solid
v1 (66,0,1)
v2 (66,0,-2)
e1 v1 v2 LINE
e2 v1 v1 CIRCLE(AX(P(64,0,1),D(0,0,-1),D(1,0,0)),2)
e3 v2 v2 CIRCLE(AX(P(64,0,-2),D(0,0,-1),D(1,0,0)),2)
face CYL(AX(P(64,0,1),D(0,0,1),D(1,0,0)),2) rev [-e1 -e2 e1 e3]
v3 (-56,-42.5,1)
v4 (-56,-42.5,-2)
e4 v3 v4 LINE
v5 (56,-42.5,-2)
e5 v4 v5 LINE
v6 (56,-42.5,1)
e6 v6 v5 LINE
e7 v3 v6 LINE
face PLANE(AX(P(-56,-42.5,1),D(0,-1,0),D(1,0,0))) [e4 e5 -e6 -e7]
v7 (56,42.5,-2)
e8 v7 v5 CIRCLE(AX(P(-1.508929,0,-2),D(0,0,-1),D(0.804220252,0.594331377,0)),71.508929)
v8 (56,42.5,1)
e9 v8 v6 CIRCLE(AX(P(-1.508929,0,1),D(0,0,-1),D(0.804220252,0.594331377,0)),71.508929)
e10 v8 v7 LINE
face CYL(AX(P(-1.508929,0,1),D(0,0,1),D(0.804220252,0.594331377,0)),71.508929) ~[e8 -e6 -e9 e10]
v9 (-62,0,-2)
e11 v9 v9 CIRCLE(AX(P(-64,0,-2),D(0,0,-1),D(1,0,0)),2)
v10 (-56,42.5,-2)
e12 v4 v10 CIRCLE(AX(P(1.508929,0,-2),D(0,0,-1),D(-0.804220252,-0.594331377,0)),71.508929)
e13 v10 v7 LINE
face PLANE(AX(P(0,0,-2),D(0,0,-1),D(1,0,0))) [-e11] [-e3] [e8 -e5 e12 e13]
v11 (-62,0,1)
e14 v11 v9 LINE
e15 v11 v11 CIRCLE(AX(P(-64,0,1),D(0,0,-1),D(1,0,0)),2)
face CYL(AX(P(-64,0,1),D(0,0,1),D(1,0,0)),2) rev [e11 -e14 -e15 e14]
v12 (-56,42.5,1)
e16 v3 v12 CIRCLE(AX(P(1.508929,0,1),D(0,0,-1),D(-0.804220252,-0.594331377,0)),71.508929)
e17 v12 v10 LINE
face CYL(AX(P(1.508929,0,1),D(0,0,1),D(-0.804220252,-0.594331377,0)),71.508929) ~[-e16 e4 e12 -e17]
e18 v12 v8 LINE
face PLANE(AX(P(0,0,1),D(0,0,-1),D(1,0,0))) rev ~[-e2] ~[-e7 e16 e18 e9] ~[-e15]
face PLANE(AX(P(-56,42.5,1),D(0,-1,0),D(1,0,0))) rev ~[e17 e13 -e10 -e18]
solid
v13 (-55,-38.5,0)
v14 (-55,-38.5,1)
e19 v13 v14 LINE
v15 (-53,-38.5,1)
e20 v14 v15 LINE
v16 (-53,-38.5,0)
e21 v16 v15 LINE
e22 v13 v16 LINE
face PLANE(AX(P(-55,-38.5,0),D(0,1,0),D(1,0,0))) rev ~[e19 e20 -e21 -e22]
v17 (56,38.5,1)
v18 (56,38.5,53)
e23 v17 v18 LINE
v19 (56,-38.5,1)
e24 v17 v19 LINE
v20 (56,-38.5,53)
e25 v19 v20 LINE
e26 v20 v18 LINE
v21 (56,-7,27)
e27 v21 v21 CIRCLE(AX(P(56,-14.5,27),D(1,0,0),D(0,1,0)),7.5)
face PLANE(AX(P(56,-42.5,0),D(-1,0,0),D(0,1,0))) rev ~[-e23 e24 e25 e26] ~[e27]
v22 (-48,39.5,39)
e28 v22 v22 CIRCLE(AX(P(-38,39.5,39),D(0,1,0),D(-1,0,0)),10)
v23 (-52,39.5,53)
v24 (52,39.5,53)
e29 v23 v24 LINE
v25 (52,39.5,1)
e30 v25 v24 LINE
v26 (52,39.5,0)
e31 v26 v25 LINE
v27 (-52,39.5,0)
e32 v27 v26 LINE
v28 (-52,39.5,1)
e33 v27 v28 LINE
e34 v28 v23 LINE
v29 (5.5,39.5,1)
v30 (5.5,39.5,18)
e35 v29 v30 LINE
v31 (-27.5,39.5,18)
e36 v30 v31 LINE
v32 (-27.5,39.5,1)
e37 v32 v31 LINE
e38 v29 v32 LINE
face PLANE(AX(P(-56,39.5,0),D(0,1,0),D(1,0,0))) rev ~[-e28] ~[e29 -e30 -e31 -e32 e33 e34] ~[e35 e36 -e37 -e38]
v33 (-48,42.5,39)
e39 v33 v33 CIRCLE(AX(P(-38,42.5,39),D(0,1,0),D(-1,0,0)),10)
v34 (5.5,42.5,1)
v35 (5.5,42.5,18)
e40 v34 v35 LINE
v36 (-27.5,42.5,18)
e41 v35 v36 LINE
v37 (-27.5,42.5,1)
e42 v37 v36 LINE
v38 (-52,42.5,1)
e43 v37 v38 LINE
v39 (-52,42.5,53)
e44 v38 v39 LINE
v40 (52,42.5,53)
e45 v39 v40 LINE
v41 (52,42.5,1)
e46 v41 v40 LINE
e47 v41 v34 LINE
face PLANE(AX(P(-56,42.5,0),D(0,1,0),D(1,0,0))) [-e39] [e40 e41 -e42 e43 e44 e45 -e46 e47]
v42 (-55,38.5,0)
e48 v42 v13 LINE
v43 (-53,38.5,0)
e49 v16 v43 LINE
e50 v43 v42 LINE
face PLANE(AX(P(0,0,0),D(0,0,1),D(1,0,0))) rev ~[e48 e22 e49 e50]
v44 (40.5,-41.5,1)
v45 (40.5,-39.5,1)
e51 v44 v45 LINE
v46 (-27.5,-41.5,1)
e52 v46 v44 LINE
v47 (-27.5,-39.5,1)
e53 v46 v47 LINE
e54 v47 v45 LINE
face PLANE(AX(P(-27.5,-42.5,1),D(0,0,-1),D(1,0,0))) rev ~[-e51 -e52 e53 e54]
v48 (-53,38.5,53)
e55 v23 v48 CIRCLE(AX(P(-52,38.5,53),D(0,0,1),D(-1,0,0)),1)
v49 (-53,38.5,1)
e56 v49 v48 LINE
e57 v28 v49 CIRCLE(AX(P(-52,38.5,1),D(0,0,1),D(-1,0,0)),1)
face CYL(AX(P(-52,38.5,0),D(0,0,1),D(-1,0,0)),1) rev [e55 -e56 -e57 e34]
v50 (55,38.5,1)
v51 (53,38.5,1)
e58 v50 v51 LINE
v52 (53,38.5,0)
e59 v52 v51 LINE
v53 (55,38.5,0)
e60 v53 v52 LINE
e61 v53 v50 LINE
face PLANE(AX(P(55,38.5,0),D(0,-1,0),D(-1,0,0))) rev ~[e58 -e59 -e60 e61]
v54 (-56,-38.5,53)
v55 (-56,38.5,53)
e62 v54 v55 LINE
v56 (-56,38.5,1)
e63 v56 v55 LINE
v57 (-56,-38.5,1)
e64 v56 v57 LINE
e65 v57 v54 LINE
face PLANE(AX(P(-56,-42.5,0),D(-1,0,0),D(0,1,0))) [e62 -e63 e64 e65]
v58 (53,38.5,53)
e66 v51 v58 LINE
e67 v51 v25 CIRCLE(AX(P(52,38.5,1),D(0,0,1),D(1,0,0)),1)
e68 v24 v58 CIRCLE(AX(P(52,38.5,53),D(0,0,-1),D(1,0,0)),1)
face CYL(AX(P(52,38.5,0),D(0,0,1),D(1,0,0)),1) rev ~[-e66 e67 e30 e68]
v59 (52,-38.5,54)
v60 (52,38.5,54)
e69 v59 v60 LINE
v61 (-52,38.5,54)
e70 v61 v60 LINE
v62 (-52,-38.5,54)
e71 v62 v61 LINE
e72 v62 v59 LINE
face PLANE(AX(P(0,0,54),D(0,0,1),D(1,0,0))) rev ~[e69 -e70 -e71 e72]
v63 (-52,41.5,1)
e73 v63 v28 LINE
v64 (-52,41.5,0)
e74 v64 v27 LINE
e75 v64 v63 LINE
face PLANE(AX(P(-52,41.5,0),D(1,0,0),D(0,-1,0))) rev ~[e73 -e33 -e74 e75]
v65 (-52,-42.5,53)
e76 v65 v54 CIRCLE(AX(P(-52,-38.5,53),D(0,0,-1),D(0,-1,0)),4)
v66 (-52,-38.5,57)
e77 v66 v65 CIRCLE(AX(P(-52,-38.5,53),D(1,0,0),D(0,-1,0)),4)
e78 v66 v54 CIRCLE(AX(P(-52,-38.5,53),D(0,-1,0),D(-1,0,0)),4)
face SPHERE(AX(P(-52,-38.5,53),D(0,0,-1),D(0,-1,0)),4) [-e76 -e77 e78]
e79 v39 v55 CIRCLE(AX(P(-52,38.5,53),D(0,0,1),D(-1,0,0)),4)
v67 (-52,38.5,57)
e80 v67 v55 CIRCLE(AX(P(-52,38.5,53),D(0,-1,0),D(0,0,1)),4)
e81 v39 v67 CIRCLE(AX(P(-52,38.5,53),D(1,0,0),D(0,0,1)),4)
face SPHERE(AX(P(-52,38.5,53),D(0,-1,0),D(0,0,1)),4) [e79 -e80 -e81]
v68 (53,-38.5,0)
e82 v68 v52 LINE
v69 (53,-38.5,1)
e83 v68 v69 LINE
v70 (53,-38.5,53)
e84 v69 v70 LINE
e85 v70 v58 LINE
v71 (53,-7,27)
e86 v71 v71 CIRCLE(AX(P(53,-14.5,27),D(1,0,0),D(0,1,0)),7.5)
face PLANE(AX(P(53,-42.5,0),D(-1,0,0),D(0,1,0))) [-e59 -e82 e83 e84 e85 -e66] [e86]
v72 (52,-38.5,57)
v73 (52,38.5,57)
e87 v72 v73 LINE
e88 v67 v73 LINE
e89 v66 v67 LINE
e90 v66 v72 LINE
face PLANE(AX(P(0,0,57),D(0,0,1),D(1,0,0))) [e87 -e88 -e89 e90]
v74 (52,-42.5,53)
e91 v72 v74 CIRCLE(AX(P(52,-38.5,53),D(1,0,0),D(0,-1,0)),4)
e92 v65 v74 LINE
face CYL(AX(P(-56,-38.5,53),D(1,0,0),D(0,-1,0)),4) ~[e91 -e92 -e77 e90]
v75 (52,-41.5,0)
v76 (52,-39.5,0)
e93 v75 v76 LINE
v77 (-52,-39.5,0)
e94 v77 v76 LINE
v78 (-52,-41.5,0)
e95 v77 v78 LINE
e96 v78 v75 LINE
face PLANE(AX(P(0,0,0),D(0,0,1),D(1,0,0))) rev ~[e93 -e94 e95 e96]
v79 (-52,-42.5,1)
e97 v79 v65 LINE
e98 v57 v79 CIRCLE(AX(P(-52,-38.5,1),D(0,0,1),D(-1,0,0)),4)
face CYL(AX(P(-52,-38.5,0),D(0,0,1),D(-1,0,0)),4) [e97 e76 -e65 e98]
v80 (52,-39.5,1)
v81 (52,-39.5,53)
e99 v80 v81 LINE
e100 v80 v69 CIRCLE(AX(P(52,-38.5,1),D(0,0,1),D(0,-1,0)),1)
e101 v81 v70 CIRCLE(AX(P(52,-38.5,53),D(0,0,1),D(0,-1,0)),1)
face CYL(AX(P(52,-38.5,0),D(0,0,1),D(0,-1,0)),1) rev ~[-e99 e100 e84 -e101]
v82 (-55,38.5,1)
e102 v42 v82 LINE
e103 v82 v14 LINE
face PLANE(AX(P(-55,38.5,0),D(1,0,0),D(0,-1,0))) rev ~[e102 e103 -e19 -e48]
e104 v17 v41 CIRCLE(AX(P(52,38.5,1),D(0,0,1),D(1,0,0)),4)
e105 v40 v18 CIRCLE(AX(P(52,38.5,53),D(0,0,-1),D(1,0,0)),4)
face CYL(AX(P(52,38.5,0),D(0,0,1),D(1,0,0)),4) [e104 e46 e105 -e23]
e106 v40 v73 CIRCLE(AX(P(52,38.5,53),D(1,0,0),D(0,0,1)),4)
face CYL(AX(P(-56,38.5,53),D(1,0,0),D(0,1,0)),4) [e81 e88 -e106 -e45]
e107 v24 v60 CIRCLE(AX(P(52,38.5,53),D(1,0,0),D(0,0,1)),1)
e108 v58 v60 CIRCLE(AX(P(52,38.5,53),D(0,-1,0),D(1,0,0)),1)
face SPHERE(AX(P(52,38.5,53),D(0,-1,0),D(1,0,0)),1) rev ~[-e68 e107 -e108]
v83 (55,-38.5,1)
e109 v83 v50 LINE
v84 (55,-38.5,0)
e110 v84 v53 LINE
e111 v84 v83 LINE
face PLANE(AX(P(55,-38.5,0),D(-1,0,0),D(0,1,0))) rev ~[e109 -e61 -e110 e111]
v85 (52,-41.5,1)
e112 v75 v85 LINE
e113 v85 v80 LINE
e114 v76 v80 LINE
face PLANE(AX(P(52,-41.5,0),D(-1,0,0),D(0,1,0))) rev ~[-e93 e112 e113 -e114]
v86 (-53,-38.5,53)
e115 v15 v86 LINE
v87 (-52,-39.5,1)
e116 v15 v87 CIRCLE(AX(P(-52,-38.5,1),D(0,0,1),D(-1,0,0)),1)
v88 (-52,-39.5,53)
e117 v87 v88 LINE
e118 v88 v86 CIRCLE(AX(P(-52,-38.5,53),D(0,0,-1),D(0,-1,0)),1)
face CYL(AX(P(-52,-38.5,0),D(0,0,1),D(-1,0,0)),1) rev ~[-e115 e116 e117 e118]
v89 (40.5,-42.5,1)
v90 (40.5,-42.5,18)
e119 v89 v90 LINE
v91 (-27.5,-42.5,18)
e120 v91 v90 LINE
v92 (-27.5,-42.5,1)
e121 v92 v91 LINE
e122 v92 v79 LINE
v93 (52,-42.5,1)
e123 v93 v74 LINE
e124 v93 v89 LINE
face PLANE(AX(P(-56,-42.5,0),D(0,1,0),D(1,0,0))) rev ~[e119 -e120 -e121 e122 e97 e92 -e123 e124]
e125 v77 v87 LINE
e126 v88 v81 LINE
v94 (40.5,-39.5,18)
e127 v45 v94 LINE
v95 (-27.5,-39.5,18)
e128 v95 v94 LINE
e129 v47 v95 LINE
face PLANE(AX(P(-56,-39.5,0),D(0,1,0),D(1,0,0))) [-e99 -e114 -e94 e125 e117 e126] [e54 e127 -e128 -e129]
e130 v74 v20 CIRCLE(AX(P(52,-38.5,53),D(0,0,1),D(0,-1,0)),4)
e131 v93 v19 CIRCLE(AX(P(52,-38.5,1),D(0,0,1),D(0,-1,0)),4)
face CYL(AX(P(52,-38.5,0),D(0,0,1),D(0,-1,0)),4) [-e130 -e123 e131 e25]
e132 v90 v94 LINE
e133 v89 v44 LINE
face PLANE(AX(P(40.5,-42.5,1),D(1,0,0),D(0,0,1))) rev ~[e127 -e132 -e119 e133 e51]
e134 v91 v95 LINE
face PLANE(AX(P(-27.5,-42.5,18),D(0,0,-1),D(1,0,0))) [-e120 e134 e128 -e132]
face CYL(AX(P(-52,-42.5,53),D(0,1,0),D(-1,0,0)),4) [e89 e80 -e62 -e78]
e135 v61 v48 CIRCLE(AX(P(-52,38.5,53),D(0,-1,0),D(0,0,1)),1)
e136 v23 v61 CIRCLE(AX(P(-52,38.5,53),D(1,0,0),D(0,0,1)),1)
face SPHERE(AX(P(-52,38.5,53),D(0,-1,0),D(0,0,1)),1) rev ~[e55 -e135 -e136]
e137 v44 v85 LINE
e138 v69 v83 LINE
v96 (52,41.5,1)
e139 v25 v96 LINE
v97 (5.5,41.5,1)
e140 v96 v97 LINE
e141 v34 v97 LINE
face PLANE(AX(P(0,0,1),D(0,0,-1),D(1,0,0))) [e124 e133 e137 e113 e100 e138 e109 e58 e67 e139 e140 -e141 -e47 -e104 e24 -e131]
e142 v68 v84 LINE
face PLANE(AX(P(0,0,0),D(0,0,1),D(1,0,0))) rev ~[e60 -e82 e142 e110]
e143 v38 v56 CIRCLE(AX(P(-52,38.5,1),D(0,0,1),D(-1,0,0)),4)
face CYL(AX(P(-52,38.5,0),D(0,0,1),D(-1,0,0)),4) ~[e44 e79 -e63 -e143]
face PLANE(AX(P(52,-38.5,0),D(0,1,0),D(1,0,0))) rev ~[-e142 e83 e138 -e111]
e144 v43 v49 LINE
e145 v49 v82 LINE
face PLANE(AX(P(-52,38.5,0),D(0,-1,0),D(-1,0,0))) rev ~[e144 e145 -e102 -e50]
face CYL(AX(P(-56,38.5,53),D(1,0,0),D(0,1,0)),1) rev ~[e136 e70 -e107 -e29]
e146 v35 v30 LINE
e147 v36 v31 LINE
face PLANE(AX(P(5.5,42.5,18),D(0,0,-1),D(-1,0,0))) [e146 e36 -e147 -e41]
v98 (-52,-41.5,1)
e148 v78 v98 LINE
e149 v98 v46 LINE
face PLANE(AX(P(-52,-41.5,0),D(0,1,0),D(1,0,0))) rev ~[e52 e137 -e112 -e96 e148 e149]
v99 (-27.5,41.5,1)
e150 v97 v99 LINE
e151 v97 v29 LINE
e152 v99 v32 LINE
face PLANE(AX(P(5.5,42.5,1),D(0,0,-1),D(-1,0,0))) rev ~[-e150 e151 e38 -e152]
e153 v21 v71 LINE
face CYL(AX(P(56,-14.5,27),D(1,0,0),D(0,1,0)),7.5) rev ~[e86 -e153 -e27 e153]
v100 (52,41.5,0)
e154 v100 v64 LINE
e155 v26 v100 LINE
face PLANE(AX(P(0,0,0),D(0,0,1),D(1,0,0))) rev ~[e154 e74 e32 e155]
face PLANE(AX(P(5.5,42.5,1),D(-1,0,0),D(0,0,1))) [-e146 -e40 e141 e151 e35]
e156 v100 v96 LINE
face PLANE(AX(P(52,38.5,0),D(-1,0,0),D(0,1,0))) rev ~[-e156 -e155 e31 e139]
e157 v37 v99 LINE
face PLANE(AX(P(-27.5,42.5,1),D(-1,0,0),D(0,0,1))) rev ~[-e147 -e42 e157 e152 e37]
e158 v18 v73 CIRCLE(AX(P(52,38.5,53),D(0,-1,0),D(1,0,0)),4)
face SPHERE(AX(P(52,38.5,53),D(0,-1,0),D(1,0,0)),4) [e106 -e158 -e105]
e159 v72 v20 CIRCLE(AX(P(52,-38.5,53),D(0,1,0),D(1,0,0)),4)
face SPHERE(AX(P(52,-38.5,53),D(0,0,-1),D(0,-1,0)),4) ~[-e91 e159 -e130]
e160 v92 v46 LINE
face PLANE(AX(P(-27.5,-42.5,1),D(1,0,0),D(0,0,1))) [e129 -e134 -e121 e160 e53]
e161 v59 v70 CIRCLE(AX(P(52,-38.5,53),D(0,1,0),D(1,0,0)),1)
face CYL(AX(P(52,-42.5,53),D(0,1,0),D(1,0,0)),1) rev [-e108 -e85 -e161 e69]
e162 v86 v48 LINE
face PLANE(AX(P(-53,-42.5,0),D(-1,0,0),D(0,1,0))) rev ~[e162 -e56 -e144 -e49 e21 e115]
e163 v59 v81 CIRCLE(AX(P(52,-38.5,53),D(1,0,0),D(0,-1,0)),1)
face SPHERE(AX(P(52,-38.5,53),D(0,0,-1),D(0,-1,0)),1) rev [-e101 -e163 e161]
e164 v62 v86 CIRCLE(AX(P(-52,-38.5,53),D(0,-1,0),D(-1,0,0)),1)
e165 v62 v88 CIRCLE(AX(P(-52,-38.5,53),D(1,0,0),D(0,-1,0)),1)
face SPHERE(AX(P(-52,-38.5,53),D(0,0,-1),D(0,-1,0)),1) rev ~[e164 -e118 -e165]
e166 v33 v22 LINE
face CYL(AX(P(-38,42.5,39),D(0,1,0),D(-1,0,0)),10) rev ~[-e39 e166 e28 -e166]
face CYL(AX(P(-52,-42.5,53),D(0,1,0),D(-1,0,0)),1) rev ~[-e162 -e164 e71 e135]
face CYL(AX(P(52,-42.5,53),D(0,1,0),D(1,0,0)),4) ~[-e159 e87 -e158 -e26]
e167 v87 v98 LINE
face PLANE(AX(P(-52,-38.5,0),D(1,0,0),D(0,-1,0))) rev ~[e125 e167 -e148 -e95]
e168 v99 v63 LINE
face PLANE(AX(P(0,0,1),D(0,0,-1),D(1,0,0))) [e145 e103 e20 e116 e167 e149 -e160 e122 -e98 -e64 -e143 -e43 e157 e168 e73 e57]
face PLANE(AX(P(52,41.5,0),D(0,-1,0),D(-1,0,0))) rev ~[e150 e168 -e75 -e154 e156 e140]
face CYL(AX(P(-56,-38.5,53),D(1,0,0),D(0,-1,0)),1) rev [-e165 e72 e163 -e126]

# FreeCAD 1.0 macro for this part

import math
import FreeCAD as App
import Part
import Sketcher

V = App.Vector


def edges_at(feature, points):
    """Names of the edges that pass closest to the given points."""
    edges = feature.Shape.Edges
    near = lambda p: min(range(len(edges)), key=lambda i: edges[i].distToShape(Part.Vertex(*p))[0])
    return sorted({f"Edge{near(p) + 1}" for p in points})


def faces_at(feature, points):
    """Names of the faces that lie closest to the given points."""
    faces = feature.Shape.Faces
    near = lambda p: min(range(len(faces)), key=lambda i: faces[i].distToShape(Part.Vertex(*p))[0])
    return sorted({f"Face{near(p) + 1}" for p in points})


def add_polygon(sketch, points):
    """Adds a closed chain of lines whose ends are joined by coincident constraints."""
    first, n = sketch.GeometryCount, len(points)
    for a, b in zip(points, points[1:] + points[:1]):
        sketch.addGeometry(Part.LineSegment(App.Vector(*a, 0), App.Vector(*b, 0)), False)
    for i in range(n):
        sketch.addConstraint(Sketcher.Constraint("Coincident", first + i, 2, first + (i + 1) % n, 1))

doc = App.newDocument("Part")
body = doc.addObject("PartDesign::Body", "Body")

# Sketch on XY plane
sketch1 = body.newObject("Sketcher::SketchObject", "Sketch")
sketch1.AttachmentSupport = (doc.getObject("XY_Plane"), [""])
sketch1.MapMode = "FlatFace"
add_polygon(sketch1, [(-56, 42), (-56, -42), (56, -42), (56, 42)])  # lines 0-3
sketch1.addConstraint([
    Sketcher.Constraint("Vertical", 0),
    Sketcher.Constraint("Horizontal", 1),
    Sketcher.Constraint("Vertical", 2),
    Sketcher.Constraint("Horizontal", 3),
    Sketcher.Constraint("Symmetric", 0, 2, 2, 2, -1, 1),
    Sketcher.Constraint("DistanceX", 1, 1, 1, 2, 112.0),
    Sketcher.Constraint("DistanceY", 0, 2, 0, 1, 85.0),
])
pad1 = body.newObject("PartDesign::Pad", "Pad")
pad1.Profile = sketch1
pad1.Length = 57
doc.recompute()

fillet = body.newObject("PartDesign::Fillet", "Fillet")
fillet.Base = (pad1, edges_at(pad1, [
    (56, -42.5, 28.5),
    (-56, -42.5, 28.5),
    (0, -42.5, 57),
    (-56, 0, 57),
    (56, 0, 57),
    (56, 42.5, 28.5),
    (0, 42.5, 57),
    (-56, 42.5, 28.5),
]))
fillet.Radius = 4
doc.recompute()

thickness = body.newObject("PartDesign::Thickness", "Thickness")
thickness.Base = (fillet, faces_at(fillet, [(0, 0, 0)]))
thickness.Value = 3
thickness.Reversed = True
thickness.Join = "Arc"

# Sketch on XY plane
sketch2 = body.newObject("Sketcher::SketchObject", "Sketch001")
sketch2.AttachmentSupport = (doc.getObject("XY_Plane"), [""])
sketch2.MapMode = "FlatFace"
add_polygon(sketch2, [(-64.7, -50.6), (-64.7, 50.6), (64.7, 50.6), (64.7, -50.6)])  # lines 0-3
add_polygon(sketch2, [(55, 38.5), (52, 38.5), (52, 41.5), (-52, 41.5), (-52, 38.5), (-55, 38.5), (-55, -38.5), (-52, -38.5), (-52, -41.5), (52, -41.5), (52, -38.5), (55, -38.5)])  # lines 4-15
sketch2.addConstraint([
    Sketcher.Constraint("Vertical", 0),
    Sketcher.Constraint("Horizontal", 1),
    Sketcher.Constraint("Vertical", 2),
    Sketcher.Constraint("Horizontal", 3),
    Sketcher.Constraint("Horizontal", 4),
    Sketcher.Constraint("Vertical", 5),
    Sketcher.Constraint("Horizontal", 6),
    Sketcher.Constraint("Vertical", 7),
    Sketcher.Constraint("Horizontal", 8),
    Sketcher.Constraint("Vertical", 9),
    Sketcher.Constraint("Horizontal", 10),
    Sketcher.Constraint("Vertical", 11),
    Sketcher.Constraint("Horizontal", 12),
    Sketcher.Constraint("Vertical", 13),
    Sketcher.Constraint("Horizontal", 14),
    Sketcher.Constraint("Vertical", 15),
    Sketcher.Constraint("Symmetric", 0, 2, 2, 2, -1, 1),
    Sketcher.Constraint("Symmetric", 4, 2, 10, 2, -1, 1),
    Sketcher.Constraint("Symmetric", 6, 2, 12, 2, -1, 1),
    Sketcher.Constraint("Symmetric", 8, 2, 14, 2, -1, 1),
    Sketcher.Constraint("Symmetric", 4, 2, 7, 2, -2),
    Sketcher.Constraint("Equal", 14, 5),
    Sketcher.Constraint("DistanceX", 4, 2, 4, 1, 3.0),
    Sketcher.Constraint("DistanceX", 6, 2, 6, 1, 104.0),
    Sketcher.Constraint("DistanceY", 9, 2, 9, 1, 77.0),
    Sketcher.Constraint("DistanceX", 1, 1, 1, 2, 129.328548),
    Sketcher.Constraint("DistanceY", 0, 1, 0, 2, 101.21753),
])
pocket1 = body.newObject("PartDesign::Pocket", "Pocket")
pocket1.Profile = sketch2
pocket1.Length = 1
pocket1.Reversed = True

# Sketch on XZ plane
sketch3 = body.newObject("Sketcher::SketchObject", "Sketch002")
sketch3.AttachmentSupport = (doc.getObject("XZ_Plane"), [""])
sketch3.MapMode = "FlatFace"
sketch3.AttachmentOffset = App.Placement(V(0, 0, 42.5), App.Rotation())
add_polygon(sketch3, [(-28, 18), (-28, 1), (40, 1), (40, 18)])  # lines 0-3
sketch3.addConstraint([
    Sketcher.Constraint("Vertical", 0),
    Sketcher.Constraint("Horizontal", 1),
    Sketcher.Constraint("Vertical", 2),
    Sketcher.Constraint("Horizontal", 3),
    Sketcher.Constraint("DistanceX", 1, 1, 1, 2, 68.0),
    Sketcher.Constraint("DistanceY", 0, 2, 0, 1, 17.0),
    Sketcher.Constraint("DistanceY", -1, 1, 0, 2, 1.0),
    Sketcher.Constraint("DistanceX", 0, 2, -1, 1, 27.5),
])
pocket2 = body.newObject("PartDesign::Pocket", "Pocket001")
pocket2.Profile = sketch3
pocket2.Length = 3

# Sketch on XZ plane
sketch4 = body.newObject("Sketcher::SketchObject", "Sketch003")
sketch4.AttachmentSupport = (doc.getObject("XZ_Plane"), [""])
sketch4.MapMode = "FlatFace"
sketch4.AttachmentOffset = App.Placement(V(0, 0, -42.5), App.Rotation())
add_polygon(sketch4, [(6, 18), (6, 1), (-28, 1), (-28, 18)])  # lines 0-3
sketch4.addConstraint([
    Sketcher.Constraint("Vertical", 0),
    Sketcher.Constraint("Horizontal", 1),
    Sketcher.Constraint("Vertical", 2),
    Sketcher.Constraint("Horizontal", 3),
    Sketcher.Constraint("DistanceX", 1, 2, 1, 1, 33.0),
    Sketcher.Constraint("DistanceY", 0, 2, 0, 1, 17.0),
    Sketcher.Constraint("DistanceY", -1, 1, 0, 2, 1.0),
    Sketcher.Constraint("DistanceX", -1, 1, 0, 2, 5.5),
])
pocket3 = body.newObject("PartDesign::Pocket", "Pocket002")
pocket3.Profile = sketch4
pocket3.Length = 3
pocket3.Reversed = True

# Sketch on XZ plane
sketch5 = body.newObject("Sketcher::SketchObject", "Sketch004")
sketch5.AttachmentSupport = (doc.getObject("XZ_Plane"), [""])
sketch5.MapMode = "FlatFace"
sketch5.AttachmentOffset = App.Placement(V(0, 0, -42.5), App.Rotation())
sketch5.addGeometry(Part.Circle(V(-38, 39, 0), V(0, 0, 1), 10), False)
sketch5.addConstraint([
    Sketcher.Constraint("Diameter", 0, 20.0),
    Sketcher.Constraint("DistanceX", 0, 3, -1, 1, 38.0),
    Sketcher.Constraint("DistanceY", -1, 1, 0, 3, 39.0),
])
pocket4 = body.newObject("PartDesign::Pocket", "Pocket003")
pocket4.Profile = sketch5
pocket4.Length = 3
pocket4.Reversed = True

# Sketch on YZ plane
sketch6 = body.newObject("Sketcher::SketchObject", "Sketch005")
sketch6.AttachmentSupport = (doc.getObject("YZ_Plane"), [""])
sketch6.MapMode = "FlatFace"
sketch6.AttachmentOffset = App.Placement(V(0, 0, 56), App.Rotation())
sketch6.addGeometry(Part.Circle(V(-14, 27, 0), V(0, 0, 1), 8), False)
sketch6.addConstraint([
    Sketcher.Constraint("Diameter", 0, 15.0),
    Sketcher.Constraint("DistanceY", -1, 1, 0, 3, 27.0),
    Sketcher.Constraint("DistanceX", 0, 3, -1, 1, 14.5),
])
pocket5 = body.newObject("PartDesign::Pocket", "Pocket004")
pocket5.Profile = sketch6
pocket5.Length = 3
body2 = doc.addObject("PartDesign::Body", "Body001")

# Sketch on XY plane
sketch7 = body2.newObject("Sketcher::SketchObject", "Sketch006")
sketch7.AttachmentSupport = (doc.getObject("XY_Plane001"), [""])
sketch7.MapMode = "FlatFace"
sketch7.AttachmentOffset = App.Placement(V(0, 0, 1), App.Rotation())
sketch7.addGeometry([
    Part.LineSegment(V(-56, 42.5, 0), V(56, 42.5, 0)),  # 0
    Part.ArcOfCircle(Part.Circle(V(-1.5, 0, 0), V(0, 0, 1), 71.5), math.radians(-36), math.radians(36)),  # 1
    Part.LineSegment(V(56, -42.5, 0), V(-56, -42.5, 0)),  # 2
    Part.ArcOfCircle(Part.Circle(V(1.5, 0, 0), V(0, 0, 1), 71.5), math.radians(144), math.radians(216)),  # 3
    Part.Circle(V(-64, 0, 0), V(0, 0, 1), 2),  # 4
    Part.Circle(V(64, 0, 0), V(0, 0, 1), 2),  # 5
], False)
sketch7.addConstraint([
    Sketcher.Constraint("Coincident", 0, 2, 1, 2),
    Sketcher.Constraint("Coincident", 1, 1, 2, 1),
    Sketcher.Constraint("Coincident", 2, 2, 3, 2),
    Sketcher.Constraint("Coincident", 3, 1, 0, 1),
    Sketcher.Constraint("Horizontal", 0),
    Sketcher.Constraint("Horizontal", 2),
    Sketcher.Constraint("Equal", 1, 3),
    Sketcher.Constraint("Equal", 4, 5),
    Sketcher.Constraint("Symmetric", 1, 3, 3, 3, -1, 1),
    Sketcher.Constraint("Symmetric", 4, 3, 5, 3, -1, 1),
    Sketcher.Constraint("Symmetric", 0, 2, 1, 1, -1),
    Sketcher.Constraint("PointOnObject", 4, 3, -1),
    Sketcher.Constraint("Diameter", 4, 4.0),
    Sketcher.Constraint("DistanceX", 0, 1, 0, 2, 112.0),
    Sketcher.Constraint("DistanceX", 4, 3, -1, 1, 64.0),
    Sketcher.Constraint("DistanceY", 1, 1, 0, 2, 85.0),
    Sketcher.Constraint("Radius", 1, 71.508929),
])
pad2 = body2.newObject("PartDesign::Pad", "Pad001")
pad2.Profile = sketch7
pad2.Length = 3
pad2.Reversed = True

doc.recompute()
